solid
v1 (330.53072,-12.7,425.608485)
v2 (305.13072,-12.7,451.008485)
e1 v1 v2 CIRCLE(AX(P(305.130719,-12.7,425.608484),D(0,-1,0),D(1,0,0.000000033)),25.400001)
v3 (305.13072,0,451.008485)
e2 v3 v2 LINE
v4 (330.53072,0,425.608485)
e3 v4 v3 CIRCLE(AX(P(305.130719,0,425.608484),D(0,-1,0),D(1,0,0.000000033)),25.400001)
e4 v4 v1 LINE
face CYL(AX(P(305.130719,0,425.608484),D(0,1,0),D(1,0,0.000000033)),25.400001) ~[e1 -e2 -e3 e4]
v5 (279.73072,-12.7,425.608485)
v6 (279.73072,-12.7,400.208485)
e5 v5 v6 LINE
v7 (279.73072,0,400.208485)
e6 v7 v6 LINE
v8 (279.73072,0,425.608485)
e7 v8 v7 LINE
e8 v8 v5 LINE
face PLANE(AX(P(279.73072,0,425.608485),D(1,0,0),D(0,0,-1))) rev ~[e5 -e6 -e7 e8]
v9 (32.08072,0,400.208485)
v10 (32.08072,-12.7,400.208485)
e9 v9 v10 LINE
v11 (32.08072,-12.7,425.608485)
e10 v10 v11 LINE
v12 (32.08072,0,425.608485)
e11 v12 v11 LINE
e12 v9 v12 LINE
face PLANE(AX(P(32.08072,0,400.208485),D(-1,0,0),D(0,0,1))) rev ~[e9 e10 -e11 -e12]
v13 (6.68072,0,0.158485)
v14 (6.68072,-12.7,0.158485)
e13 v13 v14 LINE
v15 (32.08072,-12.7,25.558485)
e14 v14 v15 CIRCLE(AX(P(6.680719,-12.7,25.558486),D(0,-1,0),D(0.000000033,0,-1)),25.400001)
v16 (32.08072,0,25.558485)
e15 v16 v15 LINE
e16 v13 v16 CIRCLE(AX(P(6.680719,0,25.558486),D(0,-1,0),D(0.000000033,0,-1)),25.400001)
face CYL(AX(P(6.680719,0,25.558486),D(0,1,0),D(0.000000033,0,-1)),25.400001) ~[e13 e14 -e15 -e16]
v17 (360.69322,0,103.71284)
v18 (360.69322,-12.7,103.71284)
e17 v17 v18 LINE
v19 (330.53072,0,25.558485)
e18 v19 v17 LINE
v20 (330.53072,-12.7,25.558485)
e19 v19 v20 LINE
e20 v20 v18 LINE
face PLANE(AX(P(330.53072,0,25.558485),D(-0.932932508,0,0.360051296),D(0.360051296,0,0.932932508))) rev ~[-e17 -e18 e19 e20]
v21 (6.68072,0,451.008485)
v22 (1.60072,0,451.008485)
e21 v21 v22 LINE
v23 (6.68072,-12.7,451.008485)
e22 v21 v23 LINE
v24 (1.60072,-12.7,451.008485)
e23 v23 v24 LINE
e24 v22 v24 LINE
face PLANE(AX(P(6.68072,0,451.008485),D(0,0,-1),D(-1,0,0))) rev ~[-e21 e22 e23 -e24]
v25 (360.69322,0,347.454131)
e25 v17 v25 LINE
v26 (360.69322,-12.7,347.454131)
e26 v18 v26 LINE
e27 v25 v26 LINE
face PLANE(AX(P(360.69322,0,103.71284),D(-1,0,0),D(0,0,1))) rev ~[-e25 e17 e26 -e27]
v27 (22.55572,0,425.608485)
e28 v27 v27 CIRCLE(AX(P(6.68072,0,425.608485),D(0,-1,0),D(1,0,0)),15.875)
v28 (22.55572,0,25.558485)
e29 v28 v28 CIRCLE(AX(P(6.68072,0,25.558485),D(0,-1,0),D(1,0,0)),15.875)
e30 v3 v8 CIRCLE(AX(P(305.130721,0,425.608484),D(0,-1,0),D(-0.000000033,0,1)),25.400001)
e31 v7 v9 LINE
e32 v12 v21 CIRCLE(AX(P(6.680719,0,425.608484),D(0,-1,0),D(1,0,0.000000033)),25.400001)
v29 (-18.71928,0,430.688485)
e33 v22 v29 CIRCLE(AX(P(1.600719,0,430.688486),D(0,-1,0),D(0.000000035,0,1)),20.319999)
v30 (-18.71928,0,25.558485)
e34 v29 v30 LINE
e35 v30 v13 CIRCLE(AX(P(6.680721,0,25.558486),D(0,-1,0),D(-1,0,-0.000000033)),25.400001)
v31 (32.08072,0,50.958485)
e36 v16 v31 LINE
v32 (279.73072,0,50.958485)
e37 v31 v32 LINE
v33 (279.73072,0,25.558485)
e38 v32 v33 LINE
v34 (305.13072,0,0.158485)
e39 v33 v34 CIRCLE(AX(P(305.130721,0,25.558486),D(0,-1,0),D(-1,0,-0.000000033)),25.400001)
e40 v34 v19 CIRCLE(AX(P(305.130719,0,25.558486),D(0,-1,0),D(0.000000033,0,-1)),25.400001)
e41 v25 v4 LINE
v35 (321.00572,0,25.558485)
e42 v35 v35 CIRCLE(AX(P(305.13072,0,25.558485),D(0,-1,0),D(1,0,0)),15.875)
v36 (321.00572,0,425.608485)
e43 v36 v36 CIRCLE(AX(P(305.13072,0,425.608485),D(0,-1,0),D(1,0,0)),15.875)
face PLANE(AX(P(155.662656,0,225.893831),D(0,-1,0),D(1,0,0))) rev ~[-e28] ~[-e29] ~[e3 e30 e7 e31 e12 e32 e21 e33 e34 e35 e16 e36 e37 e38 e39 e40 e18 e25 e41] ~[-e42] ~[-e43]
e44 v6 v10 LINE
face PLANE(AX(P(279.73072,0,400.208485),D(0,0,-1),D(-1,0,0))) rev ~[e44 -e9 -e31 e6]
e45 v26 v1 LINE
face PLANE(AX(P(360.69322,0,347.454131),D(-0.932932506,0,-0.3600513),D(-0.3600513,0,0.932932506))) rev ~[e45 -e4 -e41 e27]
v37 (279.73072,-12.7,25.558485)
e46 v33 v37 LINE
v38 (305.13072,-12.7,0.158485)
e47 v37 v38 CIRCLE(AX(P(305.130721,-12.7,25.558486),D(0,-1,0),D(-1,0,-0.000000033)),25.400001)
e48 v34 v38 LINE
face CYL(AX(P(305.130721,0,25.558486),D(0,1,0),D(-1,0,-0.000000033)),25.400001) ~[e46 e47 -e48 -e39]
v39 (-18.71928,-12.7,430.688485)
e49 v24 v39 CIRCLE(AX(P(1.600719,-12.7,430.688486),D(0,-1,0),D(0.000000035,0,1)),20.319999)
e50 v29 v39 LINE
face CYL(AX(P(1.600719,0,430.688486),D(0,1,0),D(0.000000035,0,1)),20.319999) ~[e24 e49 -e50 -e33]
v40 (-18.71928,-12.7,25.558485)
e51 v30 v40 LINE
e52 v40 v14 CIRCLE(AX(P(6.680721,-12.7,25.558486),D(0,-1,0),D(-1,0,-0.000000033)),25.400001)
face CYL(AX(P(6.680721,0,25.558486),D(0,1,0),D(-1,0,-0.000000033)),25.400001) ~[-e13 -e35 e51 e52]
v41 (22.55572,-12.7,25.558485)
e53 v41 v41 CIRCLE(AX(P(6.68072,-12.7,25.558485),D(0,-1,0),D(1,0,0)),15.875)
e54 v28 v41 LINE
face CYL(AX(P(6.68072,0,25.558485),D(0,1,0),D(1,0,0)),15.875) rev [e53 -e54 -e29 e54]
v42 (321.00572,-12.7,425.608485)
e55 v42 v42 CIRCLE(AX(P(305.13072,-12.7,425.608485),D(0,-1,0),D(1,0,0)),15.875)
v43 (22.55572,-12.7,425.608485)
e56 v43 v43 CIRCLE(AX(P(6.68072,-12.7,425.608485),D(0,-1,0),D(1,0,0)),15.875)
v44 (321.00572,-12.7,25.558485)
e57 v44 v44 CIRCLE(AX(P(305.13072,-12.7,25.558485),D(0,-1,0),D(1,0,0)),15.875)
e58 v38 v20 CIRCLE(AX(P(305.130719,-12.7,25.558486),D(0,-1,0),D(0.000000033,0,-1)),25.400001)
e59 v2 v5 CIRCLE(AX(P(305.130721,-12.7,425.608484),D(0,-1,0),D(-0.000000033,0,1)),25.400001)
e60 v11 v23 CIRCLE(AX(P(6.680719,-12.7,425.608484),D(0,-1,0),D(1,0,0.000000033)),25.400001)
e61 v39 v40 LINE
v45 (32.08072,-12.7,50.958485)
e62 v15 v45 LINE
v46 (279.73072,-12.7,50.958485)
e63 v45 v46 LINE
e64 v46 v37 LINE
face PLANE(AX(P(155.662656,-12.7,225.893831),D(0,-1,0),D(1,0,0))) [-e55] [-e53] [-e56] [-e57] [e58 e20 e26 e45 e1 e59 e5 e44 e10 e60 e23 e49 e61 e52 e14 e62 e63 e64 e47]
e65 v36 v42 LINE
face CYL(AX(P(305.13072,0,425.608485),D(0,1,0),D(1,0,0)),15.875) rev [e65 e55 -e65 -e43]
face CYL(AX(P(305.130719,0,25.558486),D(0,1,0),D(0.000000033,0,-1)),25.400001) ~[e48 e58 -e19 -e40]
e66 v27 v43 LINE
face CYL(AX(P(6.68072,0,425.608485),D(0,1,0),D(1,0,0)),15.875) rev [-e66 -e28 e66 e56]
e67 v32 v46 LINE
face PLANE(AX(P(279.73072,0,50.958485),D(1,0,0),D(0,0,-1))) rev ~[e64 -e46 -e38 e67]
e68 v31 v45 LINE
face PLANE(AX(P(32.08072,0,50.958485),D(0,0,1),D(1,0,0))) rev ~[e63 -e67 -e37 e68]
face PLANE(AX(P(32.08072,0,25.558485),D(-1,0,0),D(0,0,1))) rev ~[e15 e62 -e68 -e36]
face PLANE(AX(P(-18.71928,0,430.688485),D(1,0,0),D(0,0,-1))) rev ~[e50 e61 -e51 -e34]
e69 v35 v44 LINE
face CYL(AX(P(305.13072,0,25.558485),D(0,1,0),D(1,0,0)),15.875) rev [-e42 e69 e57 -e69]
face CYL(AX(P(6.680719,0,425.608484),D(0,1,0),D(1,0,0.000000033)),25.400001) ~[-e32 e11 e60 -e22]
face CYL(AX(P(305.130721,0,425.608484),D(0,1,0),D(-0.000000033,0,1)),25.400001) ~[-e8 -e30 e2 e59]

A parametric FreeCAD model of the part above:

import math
import FreeCAD as App
import Part
import Sketcher
from FreeCAD import Vector
Q = App.Units.Quantity

doc = App.newDocument("Part")
body = doc.addObject("PartDesign::Body", "Body")

sketch1 = body.newObject("Sketcher::SketchObject", "Sketch")
sketch1.AttachmentSupport = (doc.getObject("XZ_Plane"), [""])
sketch1.MapMode = "FlatFace"
sketch1.addGeometry([
    Part.LineSegment(Vector(6.68072, 451.008485, 0), Vector(1.60072, 451.008485, 0)),
    Part.ArcOfCircle(Part.Circle(Vector(1.600719, 430.688486, 0), Vector(0, 0, 1), 20.319999), math.radians(89.999998), math.radians(180.000002)),
    Part.LineSegment(Vector(-18.71928, 430.688485, 0), Vector(-18.71928, 25.558485, 0)),
    Part.ArcOfCircle(Part.Circle(Vector(6.680721, 25.558486, 0), Vector(0, 0, 1), 25.400001), math.radians(-179.999998), math.radians(-90.000002)),
    Part.ArcOfCircle(Part.Circle(Vector(6.680719, 25.558486, 0), Vector(0, 0, 1), 25.400001), math.radians(-89.999998), math.radians(-0.000002)),
    Part.LineSegment(Vector(32.08072, 25.558485, 0), Vector(32.08072, 50.958485, 0)),
    Part.LineSegment(Vector(32.08072, 50.958485, 0), Vector(279.73072, 50.958485, 0)),
    Part.LineSegment(Vector(279.73072, 50.958485, 0), Vector(279.73072, 25.558485, 0)),
    Part.ArcOfCircle(Part.Circle(Vector(305.130721, 25.558486, 0), Vector(0, 0, 1), 25.400001), math.radians(-179.999998), math.radians(-90.000002)),
    Part.ArcOfCircle(Part.Circle(Vector(305.130719, 25.558486, 0), Vector(0, 0, 1), 25.400001), math.radians(-89.999998), math.radians(-0.000002)),
    Part.LineSegment(Vector(330.53072, 25.558485, 0), Vector(360.69322, 103.71284, 0)),
    Part.LineSegment(Vector(360.69322, 103.71284, 0), Vector(360.69322, 347.454131, 0)),
    Part.LineSegment(Vector(360.69322, 347.454131, 0), Vector(330.53072, 425.608485, 0)),
    Part.ArcOfCircle(Part.Circle(Vector(305.130719, 425.608484, 0), Vector(0, 0, 1), 25.400001), math.radians(0.000002), math.radians(89.999998)),
    Part.ArcOfCircle(Part.Circle(Vector(305.130721, 425.608484, 0), Vector(0, 0, 1), 25.400001), math.radians(90.000002), math.radians(179.999998)),
    Part.LineSegment(Vector(279.73072, 425.608485, 0), Vector(279.73072, 400.208485, 0)),
    Part.LineSegment(Vector(279.73072, 400.208485, 0), Vector(32.08072, 400.208485, 0)),
    Part.LineSegment(Vector(32.08072, 400.208485, 0), Vector(32.08072, 425.608485, 0)),
    Part.ArcOfCircle(Part.Circle(Vector(6.680719, 425.608484, 0), Vector(0, 0, 1), 25.400001), math.radians(0.000002), math.radians(89.999998)),
    Part.Circle(Vector(6.68072, 25.558485, 0), Vector(0, 0, 1), 15.875),
    Part.Circle(Vector(305.13072, 25.558485, 0), Vector(0, 0, 1), 15.875),
    Part.Circle(Vector(6.68072, 425.608485, 0), Vector(0, 0, 1), 15.875),
    Part.Circle(Vector(305.13072, 425.608485, 0), Vector(0, 0, 1), 15.875),
], False)
sketch1.addConstraint([
    Sketcher.Constraint("Tangent", 0, 2, 1, 1),
    Sketcher.Constraint("Tangent", 1, 2, 2, 1),
    Sketcher.Constraint("Tangent", 2, 2, 3, 1),
    Sketcher.Constraint("Tangent", 3, 2, 4, 1),
    Sketcher.Constraint("Tangent", 4, 2, 5, 1),
    Sketcher.Constraint("Coincident", 5, 2, 6, 1),
    Sketcher.Constraint("Coincident", 6, 2, 7, 1),
    Sketcher.Constraint("Tangent", 7, 2, 8, 1),
    Sketcher.Constraint("Tangent", 8, 2, 9, 1),
    Sketcher.Constraint("Coincident", 9, 2, 10, 1),
    Sketcher.Constraint("Coincident", 10, 2, 11, 1),
    Sketcher.Constraint("Coincident", 11, 2, 12, 1),
    Sketcher.Constraint("Coincident", 12, 2, 13, 1),
    Sketcher.Constraint("Tangent", 13, 2, 14, 1),
    Sketcher.Constraint("Tangent", 14, 2, 15, 1),
    Sketcher.Constraint("Coincident", 15, 2, 16, 1),
    Sketcher.Constraint("Coincident", 16, 2, 17, 1),
    Sketcher.Constraint("Tangent", 17, 2, 18, 1),
    Sketcher.Constraint("Tangent", 18, 2, 0, 1),
    Sketcher.Constraint("Horizontal", 0),
    Sketcher.Constraint("Vertical", 2),
    Sketcher.Constraint("Vertical", 5),
    Sketcher.Constraint("Horizontal", 6),
    Sketcher.Constraint("Vertical", 7),
    Sketcher.Constraint("Vertical", 11),
    Sketcher.Constraint("Vertical", 15),
    Sketcher.Constraint("Horizontal", 16),
    Sketcher.Constraint("Vertical", 17),
    Sketcher.Constraint("Coincident", 19, 3, 3, 3),
    Sketcher.Constraint("Coincident", 20, 3, 8, 3),
    Sketcher.Constraint("Coincident", 21, 3, 18, 3),
    Sketcher.Constraint("Coincident", 22, 3, 13, 3),
    Sketcher.Constraint("Equal", 3, 4),
    Sketcher.Constraint("Equal", 4, 8),
    Sketcher.Constraint("Equal", 8, 9),
    Sketcher.Constraint("Equal", 9, 13),
    Sketcher.Constraint("Equal", 13, 14),
    Sketcher.Constraint("Equal", 14, 18),
    Sketcher.Constraint("Equal", 19, 20),
    Sketcher.Constraint("Equal", 20, 21),
    Sketcher.Constraint("Equal", 21, 22),
    Sketcher.Constraint("Horizontal", 4, 3, 8, 3),
    Sketcher.Constraint("Horizontal", 14, 3, 18, 3),
    Sketcher.Constraint("Horizontal", 7, 2, 9, 2),
    Sketcher.Constraint("Horizontal", 22, 3, 12, 2),
    Sketcher.Constraint("Vertical", 9, 3, 13, 3),
    Sketcher.Constraint("Vertical", 4, 3, 18, 3),
    Sketcher.Constraint("Vertical", 21, 3, 3, 2),
    Sketcher.Constraint("Vertical", 22, 3, 8, 2),
    Sketcher.Constraint("Vertical", 8, 2, 13, 2),
    Sketcher.Constraint("Equal", 7, 15),
    Sketcher.Constraint("Equal", 10, 12),
    Sketcher.Constraint("Radius", 3, Q("1 in")),
    Sketcher.Constraint("Radius", 1, Q("0.8 in")),
    Sketcher.Constraint("Diameter", 19, Q("1.25 in")),
    Sketcher.Constraint("DistanceY", 5, 1, 5, 2, Q("1 in")),
    Sketcher.Constraint("DistanceX", 6, 1, 6, 2, Q("9.75 in")),
    Sketcher.Constraint("DistanceY", 2, 2, 2, 1, Q("15.95 in")),
    Sketcher.Constraint("DistanceX", 9, 2, 10, 2, Q("1.1875 in")),
    Sketcher.Constraint("DistanceY", 11, 1, 11, 2, 243.741291),
    Sketcher.Constraint("DistanceX", -1, 1, 1, 3, 1.600719),
    Sketcher.Constraint("DistanceY", -1, 1, 10, 2, 103.71284),
])
pad1 = body.newObject("PartDesign::Pad", "Pad")
pad1.Profile = sketch1
pad1.Length = Q("0.5 in")

doc.recompute()
